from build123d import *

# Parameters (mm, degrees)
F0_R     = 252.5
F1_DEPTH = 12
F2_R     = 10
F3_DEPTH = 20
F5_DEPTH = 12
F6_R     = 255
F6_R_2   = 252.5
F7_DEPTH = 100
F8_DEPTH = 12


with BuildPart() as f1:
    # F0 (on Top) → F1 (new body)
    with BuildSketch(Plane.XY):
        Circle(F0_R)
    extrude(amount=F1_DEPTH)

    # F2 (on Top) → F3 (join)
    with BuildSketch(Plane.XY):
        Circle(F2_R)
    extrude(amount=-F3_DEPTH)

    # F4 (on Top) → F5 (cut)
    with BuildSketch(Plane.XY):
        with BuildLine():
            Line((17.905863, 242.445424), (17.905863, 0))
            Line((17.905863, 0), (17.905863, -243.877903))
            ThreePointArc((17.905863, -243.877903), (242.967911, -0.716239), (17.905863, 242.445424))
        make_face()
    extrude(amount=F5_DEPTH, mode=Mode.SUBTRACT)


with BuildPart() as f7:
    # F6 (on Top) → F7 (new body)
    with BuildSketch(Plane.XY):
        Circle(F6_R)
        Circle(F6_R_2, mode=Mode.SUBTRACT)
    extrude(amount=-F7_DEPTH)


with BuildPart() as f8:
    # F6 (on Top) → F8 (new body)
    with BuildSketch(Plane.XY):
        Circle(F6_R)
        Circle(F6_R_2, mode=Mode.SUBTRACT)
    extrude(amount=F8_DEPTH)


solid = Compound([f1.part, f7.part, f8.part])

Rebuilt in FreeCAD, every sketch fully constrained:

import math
import FreeCAD as App
import Part
import Sketcher
Q = App.Units.Quantity

doc = App.newDocument("Part")
body = doc.addObject("PartDesign::Body", "Body")

sketch1 = body.newObject("Sketcher::SketchObject", "Sketch")
sketch1.AttachmentSupport = (doc.getObject("XY_Plane"), [""])
sketch1.MapMode = "FlatFace"
sketch1.addGeometry(Part.Circle(App.Vector(0, 0, 0), App.Vector(0, 0, 1), 252.5), False)
sketch1.addConstraint([
    Sketcher.Constraint("Coincident", 0, 3, -1, 1),
    Sketcher.Constraint("Diameter", 0, Q("505 mm")),
])
pad1 = body.newObject("PartDesign::Pad", "Pad")
pad1.Profile = sketch1
pad1.Length = 12

sketch2 = body.newObject("Sketcher::SketchObject", "Sketch001")
sketch2.AttachmentSupport = (doc.getObject("XY_Plane"), [""])
sketch2.MapMode = "FlatFace"
sketch2.addGeometry(Part.Circle(App.Vector(0, 0, 0), App.Vector(0, 0, 1), 10), False)
sketch2.addConstraint([
    Sketcher.Constraint("Coincident", 0, 3, -1, 1),
    Sketcher.Constraint("Diameter", 0, Q("20 mm")),
])
pad2 = body.newObject("PartDesign::Pad", "Pad001")
pad2.Profile = sketch2
pad2.Length = 20
pad2.Reversed = True

sketch3 = body.newObject("Sketcher::SketchObject", "Sketch002")
sketch3.AttachmentSupport = (doc.getObject("XY_Plane"), [""])
sketch3.MapMode = "FlatFace"
sketch3.addGeometry([
    Part.LineSegment(App.Vector(17.905863, 242.445424, 0), App.Vector(17.905863, -243.877903, 0)),
    Part.ArcOfCircle(Part.Circle(App.Vector(-0.921543, -0.71624, 0), App.Vector(0, 0, 1), 243.889454), math.radians(-85.572563), math.radians(85.572563)),
], False)
sketch3.addConstraint([
    Sketcher.Constraint("Coincident", 0, 1, 1, 2),
    Sketcher.Constraint("Coincident", 1, 1, 0, 2),
    Sketcher.Constraint("Vertical", 0),
    Sketcher.Constraint("Radius", 1, Q("243.889454 mm")),
    Sketcher.Constraint("DistanceY", 0, 2, 0, 1, Q("486.323327 mm")),
    Sketcher.Constraint("DistanceY", 1, 3, -1, 1, Q("0.71624 mm")),
    Sketcher.Constraint("DistanceX", 1, 3, -1, 1, Q("0.921543 mm")),
])
pocket1 = body.newObject("PartDesign::Pocket", "Pocket")
pocket1.Profile = sketch3
pocket1.Length = 12
pocket1.Reversed = True
body2 = doc.addObject("PartDesign::Body", "Body001")

sketch4 = body2.newObject("Sketcher::SketchObject", "Sketch003")
sketch4.AttachmentSupport = (doc.getObject("XY_Plane001"), [""])
sketch4.MapMode = "FlatFace"
sketch4.addGeometry([
    Part.Circle(App.Vector(0, 0, 0), App.Vector(0, 0, 1), 255),
    Part.Circle(App.Vector(0, 0, 0), App.Vector(0, 0, 1), 252.5),
], False)
sketch4.addConstraint([
    Sketcher.Constraint("Coincident", 0, 3, -1, 1),
    Sketcher.Constraint("Coincident", 1, 3, -1, 1),
    Sketcher.Constraint("Diameter", 0, Q("510 mm")),
    Sketcher.Constraint("Diameter", 1, Q("505 mm")),
])
pad3 = body2.newObject("PartDesign::Pad", "Pad002")
pad3.Profile = sketch4
pad3.Length = 100
pad3.Reversed = True
body3 = doc.addObject("PartDesign::Body", "Body002")

sketch5 = body3.newObject("Sketcher::SketchObject", "Sketch004")
sketch5.AttachmentSupport = (doc.getObject("XY_Plane002"), [""])
sketch5.MapMode = "FlatFace"
sketch5.addGeometry([
    Part.Circle(App.Vector(0, 0, 0), App.Vector(0, 0, 1), 255),
    Part.Circle(App.Vector(0, 0, 0), App.Vector(0, 0, 1), 252.5),
], False)
sketch5.addConstraint([
    Sketcher.Constraint("Coincident", 0, 3, -1, 1),
    Sketcher.Constraint("Coincident", 1, 3, -1, 1),
    Sketcher.Constraint("Diameter", 0, Q("510 mm")),
    Sketcher.Constraint("Diameter", 1, Q("505 mm")),
])
pad4 = body3.newObject("PartDesign::Pad", "Pad003")
pad4.Profile = sketch5
pad4.Length = 12

doc.recompute()
